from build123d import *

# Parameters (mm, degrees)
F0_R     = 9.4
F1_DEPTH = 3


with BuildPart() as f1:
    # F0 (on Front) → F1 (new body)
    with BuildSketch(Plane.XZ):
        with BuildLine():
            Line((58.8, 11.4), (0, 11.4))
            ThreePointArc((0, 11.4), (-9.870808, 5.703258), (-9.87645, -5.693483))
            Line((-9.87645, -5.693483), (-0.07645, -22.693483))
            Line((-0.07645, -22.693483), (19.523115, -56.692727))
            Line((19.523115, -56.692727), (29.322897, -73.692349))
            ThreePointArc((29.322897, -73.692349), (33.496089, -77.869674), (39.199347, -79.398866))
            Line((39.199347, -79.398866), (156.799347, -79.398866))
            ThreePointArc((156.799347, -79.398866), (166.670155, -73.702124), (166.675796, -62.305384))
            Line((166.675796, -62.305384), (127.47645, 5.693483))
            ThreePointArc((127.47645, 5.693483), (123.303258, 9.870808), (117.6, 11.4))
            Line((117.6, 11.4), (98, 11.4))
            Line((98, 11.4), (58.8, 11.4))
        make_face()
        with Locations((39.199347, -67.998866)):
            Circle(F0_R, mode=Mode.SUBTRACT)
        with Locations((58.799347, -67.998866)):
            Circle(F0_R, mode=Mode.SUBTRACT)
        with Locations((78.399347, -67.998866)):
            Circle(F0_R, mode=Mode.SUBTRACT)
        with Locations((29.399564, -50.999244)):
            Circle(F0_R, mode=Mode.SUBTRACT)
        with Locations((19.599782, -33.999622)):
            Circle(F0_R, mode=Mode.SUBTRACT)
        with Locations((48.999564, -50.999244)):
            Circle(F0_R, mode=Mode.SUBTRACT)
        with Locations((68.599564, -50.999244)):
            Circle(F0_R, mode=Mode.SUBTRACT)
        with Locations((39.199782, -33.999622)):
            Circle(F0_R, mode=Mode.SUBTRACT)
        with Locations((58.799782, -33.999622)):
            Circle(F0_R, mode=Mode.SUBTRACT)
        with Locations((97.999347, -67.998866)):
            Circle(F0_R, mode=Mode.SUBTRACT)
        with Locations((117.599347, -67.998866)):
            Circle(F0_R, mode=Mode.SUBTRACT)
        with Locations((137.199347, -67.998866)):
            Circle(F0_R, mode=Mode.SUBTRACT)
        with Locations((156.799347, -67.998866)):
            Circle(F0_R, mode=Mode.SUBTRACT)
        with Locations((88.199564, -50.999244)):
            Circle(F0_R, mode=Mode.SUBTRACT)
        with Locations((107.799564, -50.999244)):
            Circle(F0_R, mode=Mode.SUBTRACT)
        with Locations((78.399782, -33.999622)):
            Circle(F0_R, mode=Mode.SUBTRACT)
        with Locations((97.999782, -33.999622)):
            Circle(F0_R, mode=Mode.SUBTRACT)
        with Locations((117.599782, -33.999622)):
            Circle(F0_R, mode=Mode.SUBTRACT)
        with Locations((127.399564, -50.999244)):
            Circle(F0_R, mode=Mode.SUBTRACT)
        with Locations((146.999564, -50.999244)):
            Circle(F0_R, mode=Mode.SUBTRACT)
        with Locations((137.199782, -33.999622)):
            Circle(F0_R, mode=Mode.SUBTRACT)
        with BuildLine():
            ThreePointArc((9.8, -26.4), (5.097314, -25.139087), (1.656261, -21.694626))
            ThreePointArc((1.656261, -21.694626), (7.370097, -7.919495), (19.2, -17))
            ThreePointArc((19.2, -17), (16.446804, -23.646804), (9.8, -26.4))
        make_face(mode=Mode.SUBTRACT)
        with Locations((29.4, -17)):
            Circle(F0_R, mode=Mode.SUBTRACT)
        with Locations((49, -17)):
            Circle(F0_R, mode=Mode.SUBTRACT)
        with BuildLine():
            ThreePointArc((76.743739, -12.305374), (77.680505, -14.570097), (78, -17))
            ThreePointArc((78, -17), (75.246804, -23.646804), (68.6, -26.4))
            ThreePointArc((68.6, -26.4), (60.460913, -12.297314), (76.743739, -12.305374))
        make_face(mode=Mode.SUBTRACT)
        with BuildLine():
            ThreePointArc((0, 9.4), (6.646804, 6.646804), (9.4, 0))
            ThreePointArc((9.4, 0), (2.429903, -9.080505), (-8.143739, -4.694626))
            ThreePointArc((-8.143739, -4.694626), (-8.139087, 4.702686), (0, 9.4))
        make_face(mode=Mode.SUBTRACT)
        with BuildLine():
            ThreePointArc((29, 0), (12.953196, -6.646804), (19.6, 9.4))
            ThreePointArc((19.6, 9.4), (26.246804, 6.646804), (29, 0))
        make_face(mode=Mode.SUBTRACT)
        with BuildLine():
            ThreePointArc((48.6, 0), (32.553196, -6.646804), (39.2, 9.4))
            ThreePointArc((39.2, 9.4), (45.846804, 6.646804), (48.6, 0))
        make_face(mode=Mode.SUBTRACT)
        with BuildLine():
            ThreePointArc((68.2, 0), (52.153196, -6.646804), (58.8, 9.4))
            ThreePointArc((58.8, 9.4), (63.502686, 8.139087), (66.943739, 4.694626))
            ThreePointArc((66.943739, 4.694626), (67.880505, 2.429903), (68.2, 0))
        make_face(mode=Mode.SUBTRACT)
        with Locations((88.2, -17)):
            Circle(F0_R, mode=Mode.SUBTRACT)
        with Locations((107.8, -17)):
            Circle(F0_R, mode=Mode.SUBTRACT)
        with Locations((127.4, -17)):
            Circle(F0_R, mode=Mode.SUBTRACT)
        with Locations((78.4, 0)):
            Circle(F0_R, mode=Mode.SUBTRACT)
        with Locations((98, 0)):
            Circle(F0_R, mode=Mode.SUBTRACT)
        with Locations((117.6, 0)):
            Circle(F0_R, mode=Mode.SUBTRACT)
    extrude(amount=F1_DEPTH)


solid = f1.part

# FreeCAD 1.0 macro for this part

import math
import FreeCAD as App
import Part
import Sketcher

V = App.Vector
Q = App.Units.Quantity

doc = App.newDocument("Part")
body = doc.addObject("PartDesign::Body", "Body")

# Sketch on XZ plane
sketch1 = body.newObject("Sketcher::SketchObject", "Sketch")
sketch1.AttachmentSupport = (doc.getObject("XZ_Plane"), [""])
sketch1.MapMode = "FlatFace"
sketch1.addGeometry([
    Part.ArcOfCircle(Part.Circle(V(0, 0, 0), V(0, 0, 1), 11.4), math.radians(90), math.radians(210)),  # 0
    Part.LineSegment(V(-9.9, -5.7, 0), V(-0.1, -22.7, 0)),  # 1
    Part.LineSegment(V(-0.1, -22.7, 0), V(19.5, -56.7, 0)),  # 2
    Part.LineSegment(V(19.5, -56.7, 0), V(29.3, -73.7, 0)),  # 3
    Part.ArcOfCircle(Part.Circle(V(39.2, -68, 0), V(0, 0, 1), 11.4), math.radians(-150), math.radians(-90)),  # 4
    Part.LineSegment(V(39.2, -79.4, 0), V(156.8, -79.4, 0)),  # 5
    Part.ArcOfCircle(Part.Circle(V(156.8, -68, 0), V(0, 0, 1), 11.4), math.radians(-90), math.radians(30)),  # 6
    Part.LineSegment(V(166.7, -62.3, 0), V(127.5, 5.7, 0)),  # 7
    Part.ArcOfCircle(Part.Circle(V(117.6, 0, 0), V(0, 0, 1), 11.4), math.radians(30), math.radians(90)),  # 8
    Part.LineSegment(V(117.6, 11.4, 0), V(0, 11.4, 0)),  # 9
    Part.Circle(V(39.2, -68, 0), V(0, 0, 1), 9.4),  # 10
    Part.Circle(V(58.8, -68, 0), V(0, 0, 1), 9.4),  # 11
    Part.Circle(V(78.4, -68, 0), V(0, 0, 1), 9.4),  # 12
    Part.Circle(V(29.4, -51, 0), V(0, 0, 1), 9.4),  # 13
    Part.Circle(V(19.6, -34, 0), V(0, 0, 1), 9.4),  # 14
    Part.Circle(V(49, -51, 0), V(0, 0, 1), 9.4),  # 15
    Part.Circle(V(68.6, -51, 0), V(0, 0, 1), 9.4),  # 16
    Part.Circle(V(39.2, -34, 0), V(0, 0, 1), 9.4),  # 17
    Part.Circle(V(58.8, -34, 0), V(0, 0, 1), 9.4),  # 18
    Part.Circle(V(98, -68, 0), V(0, 0, 1), 9.4),  # 19
    Part.Circle(V(117.6, -68, 0), V(0, 0, 1), 9.4),  # 20
    Part.Circle(V(137.2, -68, 0), V(0, 0, 1), 9.4),  # 21
    Part.Circle(V(156.8, -68, 0), V(0, 0, 1), 9.4),  # 22
    Part.Circle(V(88.2, -51, 0), V(0, 0, 1), 9.4),  # 23
    Part.Circle(V(107.8, -51, 0), V(0, 0, 1), 9.4),  # 24
    Part.Circle(V(78.4, -34, 0), V(0, 0, 1), 9.4),  # 25
    Part.Circle(V(98, -34, 0), V(0, 0, 1), 9.4),  # 26
    Part.Circle(V(117.6, -34, 0), V(0, 0, 1), 9.4),  # 27
    Part.Circle(V(127.4, -51, 0), V(0, 0, 1), 9.4),  # 28
    Part.Circle(V(147, -51, 0), V(0, 0, 1), 9.4),  # 29
    Part.Circle(V(137.2, -34, 0), V(0, 0, 1), 9.4),  # 30
    Part.ArcOfCircle(Part.Circle(V(9.8, -17, 0), V(0, 0, 1), 9.4), math.radians(-90), math.radians(0)),  # 31
    Part.ArcOfCircle(Part.Circle(V(9.8, -17, 0), V(0, 0, 1), 9.4), math.radians(-150), math.radians(-90)),  # 32
    Part.ArcOfCircle(Part.Circle(V(9.8, -17, 0), V(0, 0, 1), 9.4), math.radians(0), math.radians(210)),  # 33
    Part.Circle(V(29.4, -17, 0), V(0, 0, 1), 9.4),  # 34
    Part.Circle(V(49, -17, 0), V(0, 0, 1), 9.4),  # 35
    Part.ArcOfCircle(Part.Circle(V(68.6, -17, 0), V(0, 0, 1), 9.4), math.radians(30), math.radians(270)),  # 36
    Part.ArcOfCircle(Part.Circle(V(68.6, -17, 0), V(0, 0, 1), 9.4), math.radians(0), math.radians(30)),  # 37
    Part.ArcOfCircle(Part.Circle(V(68.6, -17, 0), V(0, 0, 1), 9.4), math.radians(-90), math.radians(0)),  # 38
    Part.ArcOfCircle(Part.Circle(V(0, 0, 0), V(0, 0, 1), 9.4), math.radians(90), math.radians(210)),  # 39
    Part.ArcOfCircle(Part.Circle(V(0, 0, 0), V(0, 0, 1), 9.4), math.radians(0), math.radians(90)),  # 40
    Part.ArcOfCircle(Part.Circle(V(0, 0, 0), V(0, 0, 1), 9.4), math.radians(-150), math.radians(0)),  # 41
    Part.ArcOfCircle(Part.Circle(V(19.6, 0, 0), V(0, 0, 1), 9.4), math.radians(0), math.radians(90)),  # 42
    Part.ArcOfCircle(Part.Circle(V(19.6, 0, 0), V(0, 0, 1), 9.4), math.radians(90), math.radians(360)),  # 43
    Part.ArcOfCircle(Part.Circle(V(39.2, 0, 0), V(0, 0, 1), 9.4), math.radians(0), math.radians(90)),  # 44
    Part.ArcOfCircle(Part.Circle(V(39.2, 0, 0), V(0, 0, 1), 9.4), math.radians(90), math.radians(360)),  # 45
    Part.ArcOfCircle(Part.Circle(V(58.8, 0, 0), V(0, 0, 1), 9.4), math.radians(0), math.radians(30)),  # 46
    Part.ArcOfCircle(Part.Circle(V(58.8, 0, 0), V(0, 0, 1), 9.4), math.radians(90), math.radians(360)),  # 47
    Part.ArcOfCircle(Part.Circle(V(58.8, 0, 0), V(0, 0, 1), 9.4), math.radians(30), math.radians(90)),  # 48
    Part.Circle(V(88.2, -17, 0), V(0, 0, 1), 9.4),  # 49
    Part.Circle(V(107.8, -17, 0), V(0, 0, 1), 9.4),  # 50
    Part.Circle(V(127.4, -17, 0), V(0, 0, 1), 9.4),  # 51
    Part.Circle(V(78.4, 0, 0), V(0, 0, 1), 9.4),  # 52
    Part.Circle(V(98, 0, 0), V(0, 0, 1), 9.4),  # 53
    Part.Circle(V(117.6, 0, 0), V(0, 0, 1), 9.4),  # 54
], False)
sketch1.addConstraint([
    Sketcher.Constraint("Tangent", 0, 2, 1, 1),
    Sketcher.Constraint("Coincident", 1, 2, 2, 1),
    Sketcher.Constraint("Coincident", 2, 2, 3, 1),
    Sketcher.Constraint("Tangent", 3, 2, 4, 1),
    Sketcher.Constraint("Tangent", 4, 2, 5, 1),
    Sketcher.Constraint("Tangent", 5, 2, 6, 1),
    Sketcher.Constraint("Tangent", 6, 2, 7, 1),
    Sketcher.Constraint("Tangent", 7, 2, 8, 1),
    Sketcher.Constraint("Tangent", 8, 2, 9, 1),
    Sketcher.Constraint("Tangent", 9, 2, 0, 1),
    Sketcher.Constraint("Tangent", 31, 1, 32, 2),
    Sketcher.Constraint("Tangent", 32, 1, 33, 2),
    Sketcher.Constraint("Tangent", 33, 1, 31, 2),
    Sketcher.Constraint("Tangent", 36, 1, 37, 2),
    Sketcher.Constraint("Tangent", 37, 1, 38, 2),
    Sketcher.Constraint("Tangent", 38, 1, 36, 2),
    Sketcher.Constraint("Tangent", 39, 1, 40, 2),
    Sketcher.Constraint("Tangent", 40, 1, 41, 2),
    Sketcher.Constraint("Tangent", 41, 1, 39, 2),
    Sketcher.Constraint("Tangent", 42, 1, 43, 2),
    Sketcher.Constraint("Coincident", 43, 1, 42, 2),
    Sketcher.Constraint("Tangent", 44, 1, 45, 2),
    Sketcher.Constraint("Coincident", 45, 1, 44, 2),
    Sketcher.Constraint("Tangent", 46, 1, 47, 2),
    Sketcher.Constraint("Tangent", 47, 1, 48, 2),
    Sketcher.Constraint("Tangent", 48, 1, 46, 2),
    Sketcher.Constraint("Horizontal", 5),
    Sketcher.Constraint("Horizontal", 9),
    Sketcher.Constraint("Coincident", 0, 3, -1, 1),
    Sketcher.Constraint("Coincident", 39, 3, -1, 1),
    Sketcher.Constraint("Coincident", 10, 3, 4, 3),
    Sketcher.Constraint("Coincident", 22, 3, 6, 3),
    Sketcher.Constraint("Coincident", 54, 3, 8, 3),
    Sketcher.Constraint("Equal", 0, 4),
    Sketcher.Constraint("Equal", 0, 6),
    Sketcher.Constraint("Equal", 4, 8),
    Sketcher.Constraint("Equal", 10, 11),
    Sketcher.Constraint("Equal", 11, 12),
    Sketcher.Constraint("Equal", 12, 13),
    Sketcher.Constraint("Equal", 13, 14),
    Sketcher.Constraint("Equal", 14, 15),
    Sketcher.Constraint("Equal", 15, 16),
    Sketcher.Constraint("Equal", 16, 17),
    Sketcher.Constraint("Equal", 17, 18),
    Sketcher.Constraint("Equal", 18, 19),
    Sketcher.Constraint("Equal", 19, 20),
    Sketcher.Constraint("Equal", 20, 21),
    Sketcher.Constraint("Equal", 21, 22),
    Sketcher.Constraint("Equal", 22, 23),
    Sketcher.Constraint("Equal", 23, 24),
    Sketcher.Constraint("Equal", 24, 25),
    Sketcher.Constraint("Equal", 25, 26),
    Sketcher.Constraint("Equal", 26, 27),
    Sketcher.Constraint("Equal", 27, 28),
    Sketcher.Constraint("Equal", 28, 29),
    Sketcher.Constraint("Equal", 29, 30),
    Sketcher.Constraint("Equal", 30, 31),
    Sketcher.Constraint("Equal", 33, 34),
    Sketcher.Constraint("Equal", 34, 35),
    Sketcher.Constraint("Equal", 35, 36),
    Sketcher.Constraint("Equal", 38, 39),
    Sketcher.Constraint("Equal", 41, 42),
    Sketcher.Constraint("Equal", 43, 44),
    Sketcher.Constraint("Equal", 45, 46),
    Sketcher.Constraint("Equal", 47, 49),
    Sketcher.Constraint("Equal", 49, 50),
    Sketcher.Constraint("Equal", 50, 51),
    Sketcher.Constraint("Equal", 51, 52),
    Sketcher.Constraint("Equal", 52, 53),
    Sketcher.Constraint("Equal", 53, 54),
    Sketcher.Constraint("PointOnObject", 42, 3, -1),
    Sketcher.Constraint("PointOnObject", 44, 3, -1),
    Sketcher.Constraint("PointOnObject", 46, 3, -1),
    Sketcher.Constraint("PointOnObject", 52, 3, -1),
    Sketcher.Constraint("PointOnObject", 53, 3, -1),
    Sketcher.Constraint("PointOnObject", 39, 1, -2),
    Sketcher.Constraint("PointOnObject", 40, 1, -1),
    Sketcher.Constraint("PointOnObject", 42, 1, -1),
    Sketcher.Constraint("PointOnObject", 44, 1, -1),
    Sketcher.Constraint("PointOnObject", 46, 1, -1),
    Sketcher.Constraint("Parallel", 1, 2),
    Sketcher.Constraint("Parallel", 2, 3),
    Sketcher.Constraint("Parallel", 3, 7),
    Sketcher.Constraint("Horizontal", 10, 3, 11, 3),
    Sketcher.Constraint("Horizontal", 11, 3, 12, 3),
    Sketcher.Constraint("Horizontal", 13, 3, 15, 3),
    Sketcher.Constraint("Horizontal", 15, 3, 16, 3),
    Sketcher.Constraint("Horizontal", 14, 3, 17, 3),
    Sketcher.Constraint("Horizontal", 17, 3, 18, 3),
    Sketcher.Constraint("Horizontal", 12, 3, 19, 3),
    Sketcher.Constraint("Horizontal", 19, 3, 20, 3),
    Sketcher.Constraint("Horizontal", 20, 3, 21, 3),
    Sketcher.Constraint("Horizontal", 16, 3, 23, 3),
    Sketcher.Constraint("Horizontal", 23, 3, 24, 3),
    Sketcher.Constraint("Horizontal", 18, 3, 25, 3),
    Sketcher.Constraint("Horizontal", 25, 3, 26, 3),
    Sketcher.Constraint("Horizontal", 26, 3, 27, 3),
    Sketcher.Constraint("Horizontal", 24, 3, 28, 3),
    Sketcher.Constraint("Horizontal", 28, 3, 29, 3),
    Sketcher.Constraint("Horizontal", 27, 3, 30, 3),
    Sketcher.Constraint("Horizontal", 33, 3, 34, 3),
    Sketcher.Constraint("Horizontal", 34, 3, 35, 3),
    Sketcher.Constraint("Horizontal", 35, 3, 36, 3),
    Sketcher.Constraint("Horizontal", 38, 3, 49, 3),
    Sketcher.Constraint("Horizontal", 49, 3, 50, 3),
    Sketcher.Constraint("Horizontal", 50, 3, 51, 3),
    Sketcher.Constraint("Horizontal", 51, 3, 33, 1),
    Sketcher.Constraint("Horizontal", 33, 1, 37, 1),
    Sketcher.Constraint("Vertical", 33, 3, 31, 1),
    Sketcher.Constraint("Vertical", 37, 3, 38, 1),
    Sketcher.Constraint("Vertical", 42, 3, 43, 1),
    Sketcher.Constraint("Vertical", 44, 3, 45, 1),
    Sketcher.Constraint("Vertical", 48, 3, 47, 1),
    Sketcher.Constraint("Diameter", 10, Q("18.8 mm")),
    Sketcher.Constraint("Radius", 0, Q("11.4 mm")),
    Sketcher.Constraint("DistanceX", 5, 1, 5, 2, Q("117.6 mm")),
    Sketcher.Constraint("DistanceY", 31, 3, -1, 1, Q("17.000001 mm")),
    Sketcher.Constraint("DistanceX", -1, 1, 35, 3, Q("49 mm")),
    Sketcher.Constraint("DistanceX", -1, 1, 53, 3, Q("98 mm")),
    Sketcher.Constraint("DistanceX", -1, 1, 37, 1, Q("78 mm")),
    Sketcher.Constraint("DistanceX", -1, 1, 42, 1, Q("29 mm")),
    Sketcher.Constraint("DistanceX", -1, 1, 31, 3, Q("9.800001 mm")),
    Sketcher.Constraint("DistanceX", -1, 1, 34, 3, Q("29.4 mm")),
    Sketcher.Constraint("DistanceX", -1, 1, 44, 3, Q("39.200001 mm")),
    Sketcher.Constraint("DistanceX", -1, 1, 46, 3, Q("58.800001 mm")),
    Sketcher.Constraint("DistanceX", -1, 1, 49, 3, Q("88.2 mm")),
    Sketcher.Constraint("DistanceX", -1, 1, 50, 3, Q("107.8 mm")),
    Sketcher.Constraint("DistanceX", -1, 1, 51, 3, Q("127.4 mm")),
    Sketcher.Constraint("DistanceX", -1, 1, 52, 3, Q("78.4 mm")),
    Sketcher.Constraint("Distance", 2, Q("39.244 mm")),
    Sketcher.Constraint("Distance", 3, Q("19.622 mm")),
    Sketcher.Constraint("DistanceX", -1, 1, 25, 3, Q("78.399782 mm")),
    Sketcher.Constraint("DistanceX", -1, 1, 26, 3, Q("97.999782 mm")),
    Sketcher.Constraint("DistanceX", -1, 1, 30, 3, Q("137.199782 mm")),
    Sketcher.Constraint("DistanceX", 0, 2, -1, 1, Q("9.87645 mm")),
    Sketcher.Constraint("DistanceX", 1, 2, -1, 1, Q("0.07645 mm")),
    Sketcher.Constraint("DistanceX", -1, 1, 32, 1, Q("1.656261 mm")),
    Sketcher.Constraint("DistanceX", -1, 1, 36, 1, Q("76.743739 mm")),
    Sketcher.Constraint("DistanceX", 41, 1, -1, 1, Q("8.143739 mm")),
    Sketcher.Constraint("DistanceX", -1, 1, 48, 1, Q("66.943739 mm")),
    Sketcher.Constraint("DistanceX", -1, 1, 11, 3, Q("58.799347 mm")),
    Sketcher.Constraint("DistanceX", -1, 1, 12, 3, Q("78.399347 mm")),
    Sketcher.Constraint("DistanceX", -1, 1, 13, 3, Q("29.399564 mm")),
    Sketcher.Constraint("DistanceY", 13, 3, -1, 1, Q("50.999244 mm")),
    Sketcher.Constraint("DistanceX", -1, 1, 14, 3, Q("19.599782 mm")),
    Sketcher.Constraint("DistanceY", 14, 3, -1, 1, Q("33.999622 mm")),
    Sketcher.Constraint("DistanceX", -1, 1, 15, 3, Q("48.999564 mm")),
    Sketcher.Constraint("DistanceX", -1, 1, 16, 3, Q("68.599564 mm")),
    Sketcher.Constraint("DistanceX", -1, 1, 17, 3, Q("39.199782 mm")),
    Sketcher.Constraint("DistanceX", -1, 1, 18, 3, Q("58.799782 mm")),
    Sketcher.Constraint("DistanceX", -1, 1, 19, 3, Q("97.999347 mm")),
    Sketcher.Constraint("DistanceX", -1, 1, 20, 3, Q("117.599347 mm")),
    Sketcher.Constraint("DistanceX", -1, 1, 21, 3, Q("137.199347 mm")),
    Sketcher.Constraint("DistanceX", -1, 1, 23, 3, Q("88.199564 mm")),
    Sketcher.Constraint("DistanceX", -1, 1, 24, 3, Q("107.799564 mm")),
    Sketcher.Constraint("DistanceX", -1, 1, 27, 3, Q("117.599782 mm")),
    Sketcher.Constraint("DistanceX", -1, 1, 28, 3, Q("127.399564 mm")),
    Sketcher.Constraint("DistanceX", -1, 1, 29, 3, Q("146.999564 mm")),
])
pad1 = body.newObject("PartDesign::Pad", "Pad")
pad1.Profile = sketch1
pad1.Length = 3

doc.recompute()
